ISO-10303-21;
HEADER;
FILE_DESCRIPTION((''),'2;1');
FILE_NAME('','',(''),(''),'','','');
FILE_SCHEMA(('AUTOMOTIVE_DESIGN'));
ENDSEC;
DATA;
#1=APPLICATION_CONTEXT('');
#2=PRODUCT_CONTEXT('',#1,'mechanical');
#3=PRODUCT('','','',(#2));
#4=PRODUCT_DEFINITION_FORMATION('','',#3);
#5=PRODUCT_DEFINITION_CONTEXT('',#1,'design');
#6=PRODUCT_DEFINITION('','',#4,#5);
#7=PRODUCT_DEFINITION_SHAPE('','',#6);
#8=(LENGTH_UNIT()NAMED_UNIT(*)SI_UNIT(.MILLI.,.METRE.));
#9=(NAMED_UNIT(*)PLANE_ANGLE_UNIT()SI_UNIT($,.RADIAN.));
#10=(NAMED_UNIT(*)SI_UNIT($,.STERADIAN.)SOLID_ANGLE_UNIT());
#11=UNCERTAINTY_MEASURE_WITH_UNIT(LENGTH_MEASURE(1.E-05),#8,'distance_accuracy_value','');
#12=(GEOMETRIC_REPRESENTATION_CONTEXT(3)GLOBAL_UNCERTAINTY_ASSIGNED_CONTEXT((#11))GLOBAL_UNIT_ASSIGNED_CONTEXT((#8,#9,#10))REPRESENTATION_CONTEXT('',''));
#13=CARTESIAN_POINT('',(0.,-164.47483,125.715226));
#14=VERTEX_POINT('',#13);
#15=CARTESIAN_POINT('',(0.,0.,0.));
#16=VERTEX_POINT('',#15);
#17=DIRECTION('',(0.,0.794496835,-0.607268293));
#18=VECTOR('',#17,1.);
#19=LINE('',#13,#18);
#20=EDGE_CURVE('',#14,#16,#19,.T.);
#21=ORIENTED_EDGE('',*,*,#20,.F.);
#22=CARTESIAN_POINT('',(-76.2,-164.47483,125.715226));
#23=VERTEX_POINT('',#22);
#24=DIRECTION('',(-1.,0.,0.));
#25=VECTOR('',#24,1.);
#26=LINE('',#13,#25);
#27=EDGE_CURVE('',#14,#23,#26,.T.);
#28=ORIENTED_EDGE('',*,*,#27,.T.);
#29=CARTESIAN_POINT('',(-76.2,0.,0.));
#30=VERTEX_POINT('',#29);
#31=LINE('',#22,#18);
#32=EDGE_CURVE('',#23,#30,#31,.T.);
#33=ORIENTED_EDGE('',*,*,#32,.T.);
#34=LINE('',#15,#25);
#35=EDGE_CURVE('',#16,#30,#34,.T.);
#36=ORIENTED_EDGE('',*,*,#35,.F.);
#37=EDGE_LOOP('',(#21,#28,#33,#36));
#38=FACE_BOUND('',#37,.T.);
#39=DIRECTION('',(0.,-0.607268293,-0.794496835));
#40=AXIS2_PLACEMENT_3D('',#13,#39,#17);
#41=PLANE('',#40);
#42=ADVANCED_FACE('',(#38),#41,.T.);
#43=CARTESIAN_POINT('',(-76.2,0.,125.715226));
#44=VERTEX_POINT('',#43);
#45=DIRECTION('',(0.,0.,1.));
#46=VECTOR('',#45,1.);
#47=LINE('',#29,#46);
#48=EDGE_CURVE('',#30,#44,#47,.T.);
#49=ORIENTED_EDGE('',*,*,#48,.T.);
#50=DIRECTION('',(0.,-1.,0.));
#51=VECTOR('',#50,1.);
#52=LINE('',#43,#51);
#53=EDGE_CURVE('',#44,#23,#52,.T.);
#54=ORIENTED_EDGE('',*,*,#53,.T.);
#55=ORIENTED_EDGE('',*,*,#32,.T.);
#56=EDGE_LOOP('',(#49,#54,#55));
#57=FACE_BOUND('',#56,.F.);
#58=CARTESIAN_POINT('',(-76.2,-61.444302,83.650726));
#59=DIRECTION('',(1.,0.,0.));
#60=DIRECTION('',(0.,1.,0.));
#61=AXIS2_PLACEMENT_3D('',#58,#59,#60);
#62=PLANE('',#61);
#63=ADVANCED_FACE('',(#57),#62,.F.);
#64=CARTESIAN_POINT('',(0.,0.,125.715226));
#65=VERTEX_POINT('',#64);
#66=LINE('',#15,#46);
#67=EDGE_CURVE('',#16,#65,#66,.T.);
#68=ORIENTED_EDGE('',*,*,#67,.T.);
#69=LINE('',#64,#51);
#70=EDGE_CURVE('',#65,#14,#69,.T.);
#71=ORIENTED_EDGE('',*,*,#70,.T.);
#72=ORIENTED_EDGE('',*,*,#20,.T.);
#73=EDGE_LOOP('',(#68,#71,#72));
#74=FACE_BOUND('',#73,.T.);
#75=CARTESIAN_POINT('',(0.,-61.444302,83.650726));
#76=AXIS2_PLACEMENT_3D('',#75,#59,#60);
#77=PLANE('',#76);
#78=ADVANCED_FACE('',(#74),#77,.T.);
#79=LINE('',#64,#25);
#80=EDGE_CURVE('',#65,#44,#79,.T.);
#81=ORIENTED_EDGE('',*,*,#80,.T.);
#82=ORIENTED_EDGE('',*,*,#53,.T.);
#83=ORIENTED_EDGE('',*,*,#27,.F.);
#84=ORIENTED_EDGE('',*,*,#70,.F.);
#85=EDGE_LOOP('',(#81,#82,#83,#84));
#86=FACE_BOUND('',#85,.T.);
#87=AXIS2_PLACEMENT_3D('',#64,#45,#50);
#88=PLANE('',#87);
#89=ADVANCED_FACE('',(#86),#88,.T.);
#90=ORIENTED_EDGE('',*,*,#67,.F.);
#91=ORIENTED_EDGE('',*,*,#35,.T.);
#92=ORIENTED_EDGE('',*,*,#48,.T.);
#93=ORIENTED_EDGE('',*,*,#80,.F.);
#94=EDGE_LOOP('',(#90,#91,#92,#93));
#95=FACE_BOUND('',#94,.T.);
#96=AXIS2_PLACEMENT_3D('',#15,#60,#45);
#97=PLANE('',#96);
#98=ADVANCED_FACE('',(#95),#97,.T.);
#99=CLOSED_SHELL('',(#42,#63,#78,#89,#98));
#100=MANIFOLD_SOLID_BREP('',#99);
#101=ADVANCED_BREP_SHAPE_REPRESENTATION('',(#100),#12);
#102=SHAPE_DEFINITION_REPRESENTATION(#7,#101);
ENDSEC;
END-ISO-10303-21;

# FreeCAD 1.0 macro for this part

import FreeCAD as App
import Part
import Sketcher

V = App.Vector
Q = App.Units.Quantity

doc = App.newDocument("Part")
body = doc.addObject("PartDesign::Body", "Body")

sketch1 = body.newObject("Sketcher::SketchObject", "Sketch")
sketch1.AttachmentSupport = (doc.getObject("YZ_Plane"), [""])
sketch1.MapMode = "FlatFace"
sketch1.addGeometry(Part.LineSegment(V(-164.47483, 125.715226, 0), V(0, 0, 0)), False)
sketch1.addGeometry(Part.LineSegment(V(0, 0, 0), V(0, 125.715226, 0)), False)
sketch1.addGeometry(Part.LineSegment(V(0, 125.715226, 0), V(-164.47483, 125.715226, 0)), False)
sketch1.addConstraint(Sketcher.Constraint("Coincident", 0, 2, 1, 1))
sketch1.addConstraint(Sketcher.Constraint("Coincident", 1, 2, 2, 1))
sketch1.addConstraint(Sketcher.Constraint("Coincident", 2, 2, 0, 1))
sketch1.addConstraint(Sketcher.Constraint("Vertical", 1))
sketch1.addConstraint(Sketcher.Constraint("Horizontal", 2))
sketch1.addConstraint(Sketcher.Constraint("Coincident", 0, 2, -1, 1))
sketch1.addConstraint(Sketcher.Constraint("DistanceX", 2, 2, 2, 1, Q("164.47483 mm")))
sketch1.addConstraint(Sketcher.Constraint("DistanceY", 1, 1, 1, 2, Q("125.715226 mm")))
pad1 = body.newObject("PartDesign::Pad", "Pad")
pad1.Profile = sketch1
pad1.Length = Q("3 in")
pad1.Reversed = True

doc.recompute()
